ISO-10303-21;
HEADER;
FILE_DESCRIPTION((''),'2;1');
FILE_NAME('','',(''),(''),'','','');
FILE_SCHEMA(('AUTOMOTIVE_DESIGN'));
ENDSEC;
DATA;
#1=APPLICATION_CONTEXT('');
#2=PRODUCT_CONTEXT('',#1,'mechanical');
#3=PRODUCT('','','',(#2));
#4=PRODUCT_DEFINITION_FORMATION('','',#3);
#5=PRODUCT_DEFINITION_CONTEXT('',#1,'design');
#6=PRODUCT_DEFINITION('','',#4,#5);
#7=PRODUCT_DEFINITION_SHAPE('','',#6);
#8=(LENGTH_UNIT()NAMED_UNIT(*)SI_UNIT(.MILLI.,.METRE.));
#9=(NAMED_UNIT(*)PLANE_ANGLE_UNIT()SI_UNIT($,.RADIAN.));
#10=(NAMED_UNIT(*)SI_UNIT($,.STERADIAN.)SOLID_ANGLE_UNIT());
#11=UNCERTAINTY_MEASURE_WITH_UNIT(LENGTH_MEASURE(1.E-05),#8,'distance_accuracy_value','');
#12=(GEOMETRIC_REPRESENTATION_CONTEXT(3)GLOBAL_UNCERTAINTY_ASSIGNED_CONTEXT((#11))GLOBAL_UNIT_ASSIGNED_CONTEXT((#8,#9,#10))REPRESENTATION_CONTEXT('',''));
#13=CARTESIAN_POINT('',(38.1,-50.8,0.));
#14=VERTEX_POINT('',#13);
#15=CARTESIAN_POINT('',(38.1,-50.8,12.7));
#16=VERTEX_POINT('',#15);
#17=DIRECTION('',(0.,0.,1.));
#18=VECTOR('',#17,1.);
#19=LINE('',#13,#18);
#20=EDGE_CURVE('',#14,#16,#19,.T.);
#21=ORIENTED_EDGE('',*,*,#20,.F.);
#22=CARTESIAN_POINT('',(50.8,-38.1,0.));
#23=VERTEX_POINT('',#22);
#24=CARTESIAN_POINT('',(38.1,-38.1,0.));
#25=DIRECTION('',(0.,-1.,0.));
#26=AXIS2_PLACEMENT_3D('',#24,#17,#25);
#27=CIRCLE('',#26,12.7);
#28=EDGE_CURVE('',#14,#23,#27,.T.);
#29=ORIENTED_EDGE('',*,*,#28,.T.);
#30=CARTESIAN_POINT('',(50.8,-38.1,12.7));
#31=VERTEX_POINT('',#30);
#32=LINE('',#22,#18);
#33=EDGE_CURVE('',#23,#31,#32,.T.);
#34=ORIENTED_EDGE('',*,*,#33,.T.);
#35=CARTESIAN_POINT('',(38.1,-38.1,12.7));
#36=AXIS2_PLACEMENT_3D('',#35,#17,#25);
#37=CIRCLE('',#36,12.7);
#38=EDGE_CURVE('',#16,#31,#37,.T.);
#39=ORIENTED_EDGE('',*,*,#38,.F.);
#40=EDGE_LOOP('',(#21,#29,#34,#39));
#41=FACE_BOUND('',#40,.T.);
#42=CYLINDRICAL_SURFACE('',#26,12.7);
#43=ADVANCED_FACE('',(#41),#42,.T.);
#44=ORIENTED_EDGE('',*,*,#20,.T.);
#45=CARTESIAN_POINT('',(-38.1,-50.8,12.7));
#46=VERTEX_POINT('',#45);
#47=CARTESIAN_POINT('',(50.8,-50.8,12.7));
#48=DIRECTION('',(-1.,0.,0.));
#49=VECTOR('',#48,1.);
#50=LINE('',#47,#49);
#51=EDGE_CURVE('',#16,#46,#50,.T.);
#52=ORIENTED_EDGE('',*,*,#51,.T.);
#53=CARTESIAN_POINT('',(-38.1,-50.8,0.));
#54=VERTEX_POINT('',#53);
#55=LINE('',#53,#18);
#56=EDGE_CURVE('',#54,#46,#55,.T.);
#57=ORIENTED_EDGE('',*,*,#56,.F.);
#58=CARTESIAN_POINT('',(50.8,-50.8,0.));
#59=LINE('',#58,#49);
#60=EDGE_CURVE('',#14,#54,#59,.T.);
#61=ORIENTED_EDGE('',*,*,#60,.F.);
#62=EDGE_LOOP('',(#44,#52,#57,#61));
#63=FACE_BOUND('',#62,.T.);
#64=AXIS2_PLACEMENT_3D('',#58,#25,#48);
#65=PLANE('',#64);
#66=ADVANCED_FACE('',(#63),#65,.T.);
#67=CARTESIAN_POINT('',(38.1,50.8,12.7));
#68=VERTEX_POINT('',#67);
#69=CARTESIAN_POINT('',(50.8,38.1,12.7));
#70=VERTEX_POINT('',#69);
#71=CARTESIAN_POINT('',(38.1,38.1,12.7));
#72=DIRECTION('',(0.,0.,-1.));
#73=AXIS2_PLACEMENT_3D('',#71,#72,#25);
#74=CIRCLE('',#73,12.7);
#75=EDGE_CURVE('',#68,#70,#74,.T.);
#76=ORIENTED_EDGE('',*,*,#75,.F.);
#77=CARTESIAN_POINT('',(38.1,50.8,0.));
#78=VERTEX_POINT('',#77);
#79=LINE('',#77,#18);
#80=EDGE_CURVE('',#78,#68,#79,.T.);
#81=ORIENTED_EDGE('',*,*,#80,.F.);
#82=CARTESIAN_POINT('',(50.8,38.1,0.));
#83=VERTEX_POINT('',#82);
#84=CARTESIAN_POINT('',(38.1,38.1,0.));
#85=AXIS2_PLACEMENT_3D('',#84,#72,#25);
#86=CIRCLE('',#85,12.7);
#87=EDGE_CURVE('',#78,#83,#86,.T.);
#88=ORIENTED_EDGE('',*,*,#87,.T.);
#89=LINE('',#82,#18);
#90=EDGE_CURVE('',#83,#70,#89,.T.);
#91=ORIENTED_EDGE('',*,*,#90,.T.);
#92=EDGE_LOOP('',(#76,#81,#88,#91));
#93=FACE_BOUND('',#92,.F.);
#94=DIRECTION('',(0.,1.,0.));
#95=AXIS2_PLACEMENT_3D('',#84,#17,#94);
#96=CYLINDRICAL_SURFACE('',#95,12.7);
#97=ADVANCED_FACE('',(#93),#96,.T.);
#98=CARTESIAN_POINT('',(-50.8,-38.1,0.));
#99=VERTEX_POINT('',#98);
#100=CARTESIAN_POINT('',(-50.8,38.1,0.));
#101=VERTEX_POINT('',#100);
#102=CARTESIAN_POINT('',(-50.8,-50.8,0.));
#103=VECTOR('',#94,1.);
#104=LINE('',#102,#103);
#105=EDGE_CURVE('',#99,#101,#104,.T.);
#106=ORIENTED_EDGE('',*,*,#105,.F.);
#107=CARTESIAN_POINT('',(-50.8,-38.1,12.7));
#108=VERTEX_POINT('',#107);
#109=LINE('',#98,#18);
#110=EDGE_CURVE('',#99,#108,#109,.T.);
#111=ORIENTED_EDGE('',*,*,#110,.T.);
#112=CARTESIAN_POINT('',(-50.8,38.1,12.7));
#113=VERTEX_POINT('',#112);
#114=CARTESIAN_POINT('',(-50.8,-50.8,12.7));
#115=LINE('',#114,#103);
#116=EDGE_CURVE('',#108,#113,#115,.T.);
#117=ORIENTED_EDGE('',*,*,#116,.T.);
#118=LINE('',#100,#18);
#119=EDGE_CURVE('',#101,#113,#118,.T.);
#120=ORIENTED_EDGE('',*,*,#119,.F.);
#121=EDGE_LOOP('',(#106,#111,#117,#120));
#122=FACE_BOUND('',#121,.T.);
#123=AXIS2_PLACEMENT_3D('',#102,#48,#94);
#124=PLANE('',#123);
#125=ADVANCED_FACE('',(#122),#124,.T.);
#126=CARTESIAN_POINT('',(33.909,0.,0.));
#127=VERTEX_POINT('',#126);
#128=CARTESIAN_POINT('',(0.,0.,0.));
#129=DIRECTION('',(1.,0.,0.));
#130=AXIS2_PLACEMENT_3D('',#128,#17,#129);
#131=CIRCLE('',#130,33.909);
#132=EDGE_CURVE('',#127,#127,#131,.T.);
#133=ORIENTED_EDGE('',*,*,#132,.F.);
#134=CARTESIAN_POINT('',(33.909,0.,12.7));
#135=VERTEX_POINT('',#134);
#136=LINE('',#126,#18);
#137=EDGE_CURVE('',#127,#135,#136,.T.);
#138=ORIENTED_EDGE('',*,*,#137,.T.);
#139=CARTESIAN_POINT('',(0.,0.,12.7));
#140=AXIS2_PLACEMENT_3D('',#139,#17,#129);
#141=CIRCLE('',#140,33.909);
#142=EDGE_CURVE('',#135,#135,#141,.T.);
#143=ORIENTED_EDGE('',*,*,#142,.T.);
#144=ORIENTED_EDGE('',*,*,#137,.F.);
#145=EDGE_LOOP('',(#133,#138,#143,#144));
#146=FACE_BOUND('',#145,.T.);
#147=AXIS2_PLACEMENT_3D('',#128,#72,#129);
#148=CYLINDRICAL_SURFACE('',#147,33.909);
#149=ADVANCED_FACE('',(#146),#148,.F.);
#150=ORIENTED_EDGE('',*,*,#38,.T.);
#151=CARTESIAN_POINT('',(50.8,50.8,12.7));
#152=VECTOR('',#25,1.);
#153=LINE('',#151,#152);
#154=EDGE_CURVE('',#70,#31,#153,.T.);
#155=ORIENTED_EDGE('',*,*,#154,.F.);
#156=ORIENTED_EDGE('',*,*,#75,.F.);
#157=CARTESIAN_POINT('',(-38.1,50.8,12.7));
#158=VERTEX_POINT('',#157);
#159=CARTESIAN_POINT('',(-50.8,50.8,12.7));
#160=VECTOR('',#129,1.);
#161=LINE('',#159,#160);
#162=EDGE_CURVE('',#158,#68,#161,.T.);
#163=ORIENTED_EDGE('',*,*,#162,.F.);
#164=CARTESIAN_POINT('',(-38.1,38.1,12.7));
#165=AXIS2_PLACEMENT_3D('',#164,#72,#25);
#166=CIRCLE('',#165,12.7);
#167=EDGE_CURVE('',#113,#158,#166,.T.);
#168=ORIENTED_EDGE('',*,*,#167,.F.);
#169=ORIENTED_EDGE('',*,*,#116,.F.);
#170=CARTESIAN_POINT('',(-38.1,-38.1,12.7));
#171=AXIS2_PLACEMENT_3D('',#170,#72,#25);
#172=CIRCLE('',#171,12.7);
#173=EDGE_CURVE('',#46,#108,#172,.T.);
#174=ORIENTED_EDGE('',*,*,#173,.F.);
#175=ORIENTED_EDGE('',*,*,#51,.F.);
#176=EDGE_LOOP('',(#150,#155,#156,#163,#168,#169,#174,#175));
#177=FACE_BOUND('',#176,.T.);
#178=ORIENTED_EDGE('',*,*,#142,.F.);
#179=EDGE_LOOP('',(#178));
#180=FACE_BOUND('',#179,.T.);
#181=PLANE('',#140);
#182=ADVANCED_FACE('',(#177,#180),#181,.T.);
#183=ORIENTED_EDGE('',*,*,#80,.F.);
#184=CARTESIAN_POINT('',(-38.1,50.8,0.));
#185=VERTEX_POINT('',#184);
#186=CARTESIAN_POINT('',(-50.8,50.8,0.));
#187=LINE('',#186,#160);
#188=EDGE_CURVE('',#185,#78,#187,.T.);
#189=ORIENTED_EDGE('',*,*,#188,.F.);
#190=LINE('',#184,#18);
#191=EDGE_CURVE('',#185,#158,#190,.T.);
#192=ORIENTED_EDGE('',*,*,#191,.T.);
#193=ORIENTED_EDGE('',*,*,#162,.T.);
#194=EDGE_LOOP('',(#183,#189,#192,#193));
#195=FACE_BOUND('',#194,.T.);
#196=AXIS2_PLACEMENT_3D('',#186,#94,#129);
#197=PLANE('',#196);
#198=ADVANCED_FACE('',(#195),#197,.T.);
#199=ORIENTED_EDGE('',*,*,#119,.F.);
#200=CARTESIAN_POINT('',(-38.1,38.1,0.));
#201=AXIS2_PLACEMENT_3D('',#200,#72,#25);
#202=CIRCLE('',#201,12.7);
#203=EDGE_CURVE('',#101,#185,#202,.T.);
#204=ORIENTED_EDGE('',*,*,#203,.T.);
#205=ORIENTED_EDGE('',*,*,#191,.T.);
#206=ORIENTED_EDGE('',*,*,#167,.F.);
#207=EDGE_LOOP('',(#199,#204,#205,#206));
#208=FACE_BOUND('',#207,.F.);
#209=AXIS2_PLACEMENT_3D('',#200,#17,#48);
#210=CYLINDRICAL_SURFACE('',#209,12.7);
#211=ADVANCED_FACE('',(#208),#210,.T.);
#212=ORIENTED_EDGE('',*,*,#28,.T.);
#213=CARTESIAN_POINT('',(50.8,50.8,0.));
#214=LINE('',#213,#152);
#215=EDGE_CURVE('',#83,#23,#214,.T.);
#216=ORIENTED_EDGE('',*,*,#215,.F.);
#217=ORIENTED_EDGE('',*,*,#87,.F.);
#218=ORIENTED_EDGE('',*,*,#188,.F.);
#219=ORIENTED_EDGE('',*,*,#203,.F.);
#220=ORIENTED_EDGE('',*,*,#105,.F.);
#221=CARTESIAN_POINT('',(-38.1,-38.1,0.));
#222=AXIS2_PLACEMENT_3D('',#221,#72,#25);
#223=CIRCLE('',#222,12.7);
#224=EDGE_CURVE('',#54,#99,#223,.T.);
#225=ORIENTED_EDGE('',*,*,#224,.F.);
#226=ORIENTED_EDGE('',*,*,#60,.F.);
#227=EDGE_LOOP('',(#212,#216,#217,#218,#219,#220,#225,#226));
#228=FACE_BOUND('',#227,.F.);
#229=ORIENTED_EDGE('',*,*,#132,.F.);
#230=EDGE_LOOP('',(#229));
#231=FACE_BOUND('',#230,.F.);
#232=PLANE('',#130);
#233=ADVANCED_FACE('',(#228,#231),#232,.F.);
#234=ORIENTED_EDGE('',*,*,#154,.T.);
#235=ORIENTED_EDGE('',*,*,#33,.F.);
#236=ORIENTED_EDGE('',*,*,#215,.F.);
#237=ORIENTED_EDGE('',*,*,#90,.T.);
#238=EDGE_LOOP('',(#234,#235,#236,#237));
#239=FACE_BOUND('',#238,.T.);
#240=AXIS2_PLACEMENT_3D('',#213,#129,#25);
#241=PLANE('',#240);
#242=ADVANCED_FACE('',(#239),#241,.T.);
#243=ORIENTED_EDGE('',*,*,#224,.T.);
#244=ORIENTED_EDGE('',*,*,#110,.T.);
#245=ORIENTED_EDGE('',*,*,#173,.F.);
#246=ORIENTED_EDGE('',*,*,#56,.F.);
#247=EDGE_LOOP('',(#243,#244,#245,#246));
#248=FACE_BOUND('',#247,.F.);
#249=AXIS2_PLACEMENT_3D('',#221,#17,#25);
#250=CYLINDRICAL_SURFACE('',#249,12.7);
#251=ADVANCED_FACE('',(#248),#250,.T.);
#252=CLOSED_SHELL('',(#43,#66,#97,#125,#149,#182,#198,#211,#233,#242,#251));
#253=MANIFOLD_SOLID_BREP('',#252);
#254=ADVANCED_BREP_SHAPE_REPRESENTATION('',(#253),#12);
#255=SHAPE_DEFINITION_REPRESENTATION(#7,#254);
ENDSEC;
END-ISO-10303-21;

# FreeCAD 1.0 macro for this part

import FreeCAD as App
import Part
import Sketcher
from FreeCAD import Vector
Q = App.Units.Quantity


def edges_at(feature, points):
    """Names of the edges that pass closest to the given points."""
    edges = feature.Shape.Edges
    near = lambda p: min(range(len(edges)), key=lambda i: edges[i].distToShape(Part.Vertex(*p))[0])
    return sorted({f"Edge{near(p) + 1}" for p in points})


def add_polygon(sketch, points):
    """Adds a closed chain of lines whose ends are joined by coincident constraints."""
    first, n = sketch.GeometryCount, len(points)
    for a, b in zip(points, points[1:] + points[:1]):
        sketch.addGeometry(Part.LineSegment(App.Vector(*a, 0), App.Vector(*b, 0)), False)
    for i in range(n):
        sketch.addConstraint(Sketcher.Constraint("Coincident", first + i, 2, first + (i + 1) % n, 1))

doc = App.newDocument("Part")
body = doc.addObject("PartDesign::Body", "Body")

# Sketch on XY plane
sketch1 = doc.addObject("Sketcher::SketchObject", "Sketch")
body.addObject(sketch1)
sketch1.AttachmentSupport = (doc.XY_Plane, [""])
sketch1.MapMode = "FlatFace"
add_polygon(sketch1, [(-50.8, -50.8), (50.8, -50.8), (50.8, 50.8), (-50.8, 50.8)])  # lines 0-3
sketch1.addGeometry(Part.Circle(Vector(0, 0, 0), Vector(0, 0, 1), 33.909), False)  # 4
sketch1.addConstraint([
    Sketcher.Constraint("Horizontal", 0),
    Sketcher.Constraint("Vertical", 1),
    Sketcher.Constraint("Horizontal", 2),
    Sketcher.Constraint("Vertical", 3),
    Sketcher.Constraint("Coincident", 4, 3, -1, 1),
    Sketcher.Constraint("Symmetric", 0, 2, 2, 2, -1, 1),
    Sketcher.Constraint("Equal", 2, 1),
    Sketcher.Constraint("Diameter", 4, Q("2.67 in")),
    Sketcher.Constraint("DistanceX", 0, 1, 0, 2, Q("4 in")),
])
pad1 = doc.addObject("PartDesign::Pad", "Pad")
body.addObject(pad1)
pad1.Profile = sketch1
pad1.Length = Q("0.5 in")
doc.recompute()

fillet = doc.addObject("PartDesign::Fillet", "Fillet")
body.addObject(fillet)
fillet.Base = (pad1, edges_at(pad1, [
    (50.8, 50.8, 6.35),
    (50.8, -50.8, 6.35),
    (-50.8, 50.8, 6.35),
    (-50.8, -50.8, 6.35),
]))
fillet.Radius = Q("0.5 in")

doc.recompute()
